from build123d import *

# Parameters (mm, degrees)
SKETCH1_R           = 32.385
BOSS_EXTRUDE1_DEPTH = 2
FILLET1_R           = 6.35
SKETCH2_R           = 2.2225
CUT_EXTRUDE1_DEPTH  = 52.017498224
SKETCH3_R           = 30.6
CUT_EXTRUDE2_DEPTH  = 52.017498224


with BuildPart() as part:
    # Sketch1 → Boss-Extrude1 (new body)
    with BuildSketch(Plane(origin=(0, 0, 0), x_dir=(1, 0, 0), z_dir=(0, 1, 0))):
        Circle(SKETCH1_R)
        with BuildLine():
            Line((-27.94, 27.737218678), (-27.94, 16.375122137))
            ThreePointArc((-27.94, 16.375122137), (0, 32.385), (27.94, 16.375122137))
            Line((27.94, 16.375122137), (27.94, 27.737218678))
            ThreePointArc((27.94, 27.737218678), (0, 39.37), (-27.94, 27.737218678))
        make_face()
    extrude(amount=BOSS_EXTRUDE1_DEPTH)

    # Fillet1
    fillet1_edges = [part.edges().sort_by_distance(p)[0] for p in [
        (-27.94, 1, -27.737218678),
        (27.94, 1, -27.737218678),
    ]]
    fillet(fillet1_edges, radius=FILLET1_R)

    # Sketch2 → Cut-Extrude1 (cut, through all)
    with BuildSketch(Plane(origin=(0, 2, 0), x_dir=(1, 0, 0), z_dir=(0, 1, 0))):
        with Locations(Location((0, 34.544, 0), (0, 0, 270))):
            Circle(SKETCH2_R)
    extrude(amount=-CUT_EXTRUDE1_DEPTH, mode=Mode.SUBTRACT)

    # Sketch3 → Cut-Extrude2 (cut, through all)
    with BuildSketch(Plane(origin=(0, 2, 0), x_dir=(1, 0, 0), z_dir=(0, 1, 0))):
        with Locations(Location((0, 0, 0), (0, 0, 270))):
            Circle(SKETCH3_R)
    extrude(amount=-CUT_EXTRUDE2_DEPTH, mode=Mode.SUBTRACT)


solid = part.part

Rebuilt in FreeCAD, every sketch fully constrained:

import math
import FreeCAD as App
import Part
import Sketcher
Q = App.Units.Quantity


def edges_at(feature, points):
    """Names of the edges that pass closest to the given points."""
    edges = feature.Shape.Edges
    near = lambda p: min(range(len(edges)), key=lambda i: edges[i].distToShape(Part.Vertex(*p))[0])
    return sorted({f"Edge{near(p) + 1}" for p in points})

doc = App.newDocument("Part")
body = doc.addObject("PartDesign::Body", "Body")

# Sketch on XZ plane
sketch1 = body.newObject("Sketcher::SketchObject", "Sketch")
sketch1.AttachmentSupport = (doc.getObject("XZ_Plane"), [""])
sketch1.MapMode = "FlatFace"
sketch1.addGeometry([
    Part.LineSegment(App.Vector(28, -16, 0), App.Vector(28, -28, 0)),
    Part.ArcOfCircle(Part.Circle(App.Vector(0, 0, 0), App.Vector(0, 0, 1), 39), math.radians(-135), math.radians(-45)),
    Part.LineSegment(App.Vector(-28, -28, 0), App.Vector(-28, -16, 0)),
    Part.ArcOfCircle(Part.Circle(App.Vector(0, 0, 0), App.Vector(0, 0, 1), 32), math.radians(-30), math.radians(210)),
], False)
sketch1.addConstraint([
    Sketcher.Constraint("Coincident", 0, 2, 1, 2),
    Sketcher.Constraint("Coincident", 1, 1, 2, 1),
    Sketcher.Constraint("Coincident", 2, 2, 3, 2),
    Sketcher.Constraint("Coincident", 3, 1, 0, 1),
    Sketcher.Constraint("Vertical", 0),
    Sketcher.Constraint("Vertical", 2),
    Sketcher.Constraint("Coincident", 1, 3, -1, 1),
    Sketcher.Constraint("Coincident", 3, 3, -1, 1),
    Sketcher.Constraint("Horizontal", 0, 2, 1, 1),
    Sketcher.Constraint("Radius", 1, Q("1.55 in")),
    Sketcher.Constraint("Radius", 3, Q("1.275 in")),
    Sketcher.Constraint("DistanceX", -1, 1, 0, 2, Q("1.1 in")),
])
pad1 = body.newObject("PartDesign::Pad", "Pad")
pad1.Profile = sketch1
pad1.Length = 2
pad1.Reversed = True
doc.recompute()

fillet = body.newObject("PartDesign::Fillet", "Fillet")
fillet.Base = (pad1, edges_at(pad1, [(-27.94, 1, -27.737), (27.94, 1, -27.737)]))
fillet.Radius = Q("0.25 in")

# Sketch on XZ plane
sketch2 = body.newObject("Sketcher::SketchObject", "Sketch001")
sketch2.AttachmentSupport = (doc.getObject("XZ_Plane"), [""])
sketch2.MapMode = "FlatFace"
sketch2.AttachmentOffset = App.Placement(App.Vector(0, 0, -2), App.Rotation())
sketch2.addGeometry(Part.Circle(App.Vector(0, -34.5, 0), App.Vector(0, 0, 1), 2.2), False)
sketch2.addConstraint([
    Sketcher.Constraint("PointOnObject", 0, 3, -2),
    Sketcher.Constraint("Diameter", 0, Q("0.175 in")),
    Sketcher.Constraint("DistanceY", 0, 3, -1, 1, Q("1.36 in")),
])
pocket1 = body.newObject("PartDesign::Pocket", "Pocket")
pocket1.Profile = sketch2
pocket1.Type = "ThroughAll"
pocket1.Reversed = True

# Sketch on XZ plane
sketch3 = body.newObject("Sketcher::SketchObject", "Sketch002")
sketch3.AttachmentSupport = (doc.getObject("XZ_Plane"), [""])
sketch3.MapMode = "FlatFace"
sketch3.AttachmentOffset = App.Placement(App.Vector(0, 0, -2), App.Rotation())
sketch3.addGeometry(Part.Circle(App.Vector(0, 0, 0), App.Vector(0, 0, 1), 31), False)
sketch3.addConstraint([
    Sketcher.Constraint("Coincident", 0, 3, -1, 1),
    Sketcher.Constraint("Diameter", 0, 61.2),
])
pocket2 = body.newObject("PartDesign::Pocket", "Pocket001")
pocket2.Profile = sketch3
pocket2.Type = "ThroughAll"
pocket2.Reversed = True

doc.recompute()
